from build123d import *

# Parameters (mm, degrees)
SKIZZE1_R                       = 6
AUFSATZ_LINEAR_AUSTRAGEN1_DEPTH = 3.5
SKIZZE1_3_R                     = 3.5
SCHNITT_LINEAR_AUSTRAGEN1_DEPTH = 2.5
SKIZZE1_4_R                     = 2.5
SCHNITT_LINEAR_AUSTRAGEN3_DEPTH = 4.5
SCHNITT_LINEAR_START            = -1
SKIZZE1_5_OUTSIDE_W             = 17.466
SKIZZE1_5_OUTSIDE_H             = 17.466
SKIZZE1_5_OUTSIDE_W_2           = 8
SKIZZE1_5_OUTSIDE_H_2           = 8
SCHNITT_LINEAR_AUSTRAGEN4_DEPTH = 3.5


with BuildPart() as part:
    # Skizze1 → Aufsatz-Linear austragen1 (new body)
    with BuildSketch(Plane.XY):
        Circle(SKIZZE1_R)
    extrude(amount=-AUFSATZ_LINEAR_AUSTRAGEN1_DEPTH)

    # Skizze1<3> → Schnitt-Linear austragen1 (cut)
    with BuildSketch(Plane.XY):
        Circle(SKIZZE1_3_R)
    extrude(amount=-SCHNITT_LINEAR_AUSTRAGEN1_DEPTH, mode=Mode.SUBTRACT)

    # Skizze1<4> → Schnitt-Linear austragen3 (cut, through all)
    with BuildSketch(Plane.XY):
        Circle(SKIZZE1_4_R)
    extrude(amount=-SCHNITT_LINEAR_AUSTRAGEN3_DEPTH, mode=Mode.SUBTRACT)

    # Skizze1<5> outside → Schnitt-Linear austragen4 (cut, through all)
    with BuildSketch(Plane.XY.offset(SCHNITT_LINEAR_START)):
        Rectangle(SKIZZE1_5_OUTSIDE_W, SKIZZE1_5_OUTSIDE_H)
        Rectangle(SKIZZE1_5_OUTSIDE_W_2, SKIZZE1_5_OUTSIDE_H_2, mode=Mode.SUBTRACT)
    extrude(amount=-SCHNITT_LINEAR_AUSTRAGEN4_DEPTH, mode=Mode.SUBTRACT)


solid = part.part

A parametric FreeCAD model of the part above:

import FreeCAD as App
import Part
import Sketcher

V = App.Vector


def add_polygon(sketch, points):
    """Adds a closed chain of lines whose ends are joined by coincident constraints."""
    first, n = sketch.GeometryCount, len(points)
    for a, b in zip(points, points[1:] + points[:1]):
        sketch.addGeometry(Part.LineSegment(App.Vector(*a, 0), App.Vector(*b, 0)), False)
    for i in range(n):
        sketch.addConstraint(Sketcher.Constraint("Coincident", first + i, 2, first + (i + 1) % n, 1))

doc = App.newDocument("Part")
body = doc.addObject("PartDesign::Body", "Body")

# Sketch on XY plane
sketch1 = body.newObject("Sketcher::SketchObject", "Sketch")
sketch1.AttachmentSupport = (doc.getObject("XY_Plane"), [""])
sketch1.MapMode = "FlatFace"
sketch1.addGeometry(Part.Circle(V(0, 0, 0), V(0, 0, 1), 6), False)
sketch1.addConstraint(Sketcher.Constraint("Coincident", 0, 3, -1, 1))
sketch1.addConstraint(Sketcher.Constraint("Diameter", 0, 12.0))
pad1 = body.newObject("PartDesign::Pad", "Pad")
pad1.Profile = sketch1
pad1.Length = 3.5
pad1.Reversed = True

# Sketch on XY plane
sketch2 = body.newObject("Sketcher::SketchObject", "Sketch001")
sketch2.AttachmentSupport = (doc.getObject("XY_Plane"), [""])
sketch2.MapMode = "FlatFace"
sketch2.addGeometry(Part.Circle(V(0, 0, 0), V(0, 0, 1), 3.5), False)
sketch2.addConstraint(Sketcher.Constraint("Coincident", 0, 3, -1, 1))
sketch2.addConstraint(Sketcher.Constraint("Diameter", 0, 7.0))
pocket1 = body.newObject("PartDesign::Pocket", "Pocket")
pocket1.Profile = sketch2
pocket1.Length = 2.5

# Sketch on XY plane
sketch3 = body.newObject("Sketcher::SketchObject", "Sketch002")
sketch3.AttachmentSupport = (doc.getObject("XY_Plane"), [""])
sketch3.MapMode = "FlatFace"
sketch3.addGeometry(Part.Circle(V(0, 0, 0), V(0, 0, 1), 2.5), False)
sketch3.addConstraint(Sketcher.Constraint("Coincident", 0, 3, -1, 1))
sketch3.addConstraint(Sketcher.Constraint("Diameter", 0, 5.0))
pocket2 = body.newObject("PartDesign::Pocket", "Pocket001")
pocket2.Profile = sketch3
pocket2.Type = "ThroughAll"

# Sketch on XY plane
sketch4 = body.newObject("Sketcher::SketchObject", "Sketch003")
sketch4.AttachmentSupport = (doc.getObject("XY_Plane"), [""])
sketch4.MapMode = "FlatFace"
sketch4.AttachmentOffset = App.Placement(V(0, 0, -1), App.Rotation())
add_polygon(sketch4, [(-8.733, 8.733), (-8.733, -8.733), (8.733, -8.733), (8.733, 8.733)])  # lines 0-3
add_polygon(sketch4, [(4, -4), (-4, -4), (-4, 4), (4, 4)])  # lines 4-7
sketch4.addConstraint(Sketcher.Constraint("Vertical", 0))
sketch4.addConstraint(Sketcher.Constraint("Horizontal", 1))
sketch4.addConstraint(Sketcher.Constraint("Vertical", 2))
sketch4.addConstraint(Sketcher.Constraint("Horizontal", 3))
sketch4.addConstraint(Sketcher.Constraint("Horizontal", 4))
sketch4.addConstraint(Sketcher.Constraint("Vertical", 5))
sketch4.addConstraint(Sketcher.Constraint("Horizontal", 6))
sketch4.addConstraint(Sketcher.Constraint("Vertical", 7))
sketch4.addConstraint(Sketcher.Constraint("Symmetric", 0, 2, 2, 2, -1, 1))
sketch4.addConstraint(Sketcher.Constraint("Symmetric", 4, 2, 6, 2, -1, 1))
sketch4.addConstraint(Sketcher.Constraint("Equal", 3, 0))
sketch4.addConstraint(Sketcher.Constraint("Equal", 6, 5))
sketch4.addConstraint(Sketcher.Constraint("DistanceX", 4, 2, 4, 1, 8.0))
sketch4.addConstraint(Sketcher.Constraint("DistanceX", 1, 1, 1, 2, 17.466))
pocket3 = body.newObject("PartDesign::Pocket", "Pocket002")
pocket3.Profile = sketch4
pocket3.Type = "ThroughAll"

doc.recompute()
